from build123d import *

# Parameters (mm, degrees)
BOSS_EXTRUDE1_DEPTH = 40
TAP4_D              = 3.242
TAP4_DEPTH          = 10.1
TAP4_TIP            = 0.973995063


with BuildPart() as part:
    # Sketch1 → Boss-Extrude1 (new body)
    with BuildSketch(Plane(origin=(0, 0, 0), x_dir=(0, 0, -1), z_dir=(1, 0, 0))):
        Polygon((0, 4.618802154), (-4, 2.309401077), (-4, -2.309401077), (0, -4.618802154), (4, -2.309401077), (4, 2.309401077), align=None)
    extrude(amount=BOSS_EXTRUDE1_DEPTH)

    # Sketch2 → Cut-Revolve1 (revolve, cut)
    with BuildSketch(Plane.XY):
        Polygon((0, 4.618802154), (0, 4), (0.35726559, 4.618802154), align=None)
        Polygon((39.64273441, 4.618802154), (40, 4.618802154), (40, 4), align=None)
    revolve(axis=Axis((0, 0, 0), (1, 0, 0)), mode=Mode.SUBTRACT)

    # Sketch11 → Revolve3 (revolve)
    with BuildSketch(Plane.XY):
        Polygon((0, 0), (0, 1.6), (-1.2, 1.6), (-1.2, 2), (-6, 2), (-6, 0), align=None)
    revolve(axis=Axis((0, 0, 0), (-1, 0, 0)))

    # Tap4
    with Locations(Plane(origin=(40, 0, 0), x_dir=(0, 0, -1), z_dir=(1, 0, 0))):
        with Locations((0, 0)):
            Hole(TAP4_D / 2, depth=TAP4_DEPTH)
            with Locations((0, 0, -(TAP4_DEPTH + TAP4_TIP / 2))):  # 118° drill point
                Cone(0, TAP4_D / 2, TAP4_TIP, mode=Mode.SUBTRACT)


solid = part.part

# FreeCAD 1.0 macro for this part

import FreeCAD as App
import Part
import Sketcher

V = App.Vector
Q = App.Units.Quantity

doc = App.newDocument("Part")
body = doc.addObject("PartDesign::Body", "Body")

# Sketch on YZ plane
sketch1 = body.newObject("Sketcher::SketchObject", "Sketch")
sketch1.AttachmentSupport = (doc.getObject("YZ_Plane"), [""])
sketch1.MapMode = "FlatFace"
sketch1.addGeometry([
    Part.LineSegment(V(4.6, 0, 0), V(2.3, 4, 0)),  # 0
    Part.LineSegment(V(2.3, 4, 0), V(-2.3, 4, 0)),  # 1
    Part.LineSegment(V(-2.3, 4, 0), V(-4.6, 0, 0)),  # 2
    Part.LineSegment(V(-4.6, 0, 0), V(-2.3, -4, 0)),  # 3
    Part.LineSegment(V(-2.3, -4, 0), V(2.3, -4, 0)),  # 4
    Part.LineSegment(V(2.3, -4, 0), V(4.6, 0, 0)),  # 5
], False)
sketch1.addConstraint([
    Sketcher.Constraint("Coincident", 0, 2, 1, 1),
    Sketcher.Constraint("Coincident", 1, 2, 2, 1),
    Sketcher.Constraint("Coincident", 2, 2, 3, 1),
    Sketcher.Constraint("Coincident", 3, 2, 4, 1),
    Sketcher.Constraint("Coincident", 4, 2, 5, 1),
    Sketcher.Constraint("Coincident", 5, 2, 0, 1),
    Sketcher.Constraint("Horizontal", 1),
    Sketcher.Constraint("Horizontal", 4),
    Sketcher.Constraint("Symmetric", 0, 2, 3, 2, -1, 1),
    Sketcher.Constraint("Symmetric", 2, 2, 5, 2, -1, 1),
    Sketcher.Constraint("PointOnObject", 2, 2, -1),
    Sketcher.Constraint("Parallel", 2, 5),
    Sketcher.Constraint("Vertical", 1, 2, 3, 2),
    Sketcher.Constraint("Angle", 0, Q("120 deg")),
    Sketcher.Constraint("DistanceY", -1, 1, 0, 2, Q("4 mm")),
    Sketcher.Constraint("DistanceX", -1, 1, 0, 2, Q("2.309401 mm")),
])
pad1 = body.newObject("PartDesign::Pad", "Pad")
pad1.Profile = sketch1
pad1.Length = 40

# Sketch on XY plane
sketch2 = body.newObject("Sketcher::SketchObject", "Sketch001")
sketch2.AttachmentSupport = (doc.getObject("XY_Plane"), [""])
sketch2.MapMode = "FlatFace"
sketch2.addGeometry([
    Part.LineSegment(V(0, 4.62, 0), V(0, 4, 0)),  # 0
    Part.LineSegment(V(0, 4, 0), V(0.36, 4.62, 0)),  # 1
    Part.LineSegment(V(0.36, 4.62, 0), V(0, 4.62, 0)),  # 2
    Part.LineSegment(V(40, 4.62, 0), V(39.64, 4.62, 0)),  # 3
    Part.LineSegment(V(39.64, 4.62, 0), V(40, 4, 0)),  # 4
    Part.LineSegment(V(40, 4, 0), V(40, 4.62, 0)),  # 5
], False)
sketch2.addConstraint([
    Sketcher.Constraint("Coincident", 0, 2, 1, 1),
    Sketcher.Constraint("Coincident", 1, 2, 2, 1),
    Sketcher.Constraint("Coincident", 2, 2, 0, 1),
    Sketcher.Constraint("Coincident", 3, 2, 4, 1),
    Sketcher.Constraint("Coincident", 4, 2, 5, 1),
    Sketcher.Constraint("Coincident", 5, 2, 3, 1),
    Sketcher.Constraint("Vertical", 0),
    Sketcher.Constraint("Horizontal", 2),
    Sketcher.Constraint("Horizontal", 3),
    Sketcher.Constraint("Vertical", 5),
    Sketcher.Constraint("PointOnObject", 0, 2, -2),
    Sketcher.Constraint("Horizontal", 2, 2, 3, 2),
    Sketcher.Constraint("Horizontal", 0, 2, 4, 2),
    Sketcher.Constraint("Equal", 2, 3),
    Sketcher.Constraint("Angle", 1, Q("60 deg")),
    Sketcher.Constraint("DistanceY", -1, 1, 0, 2, Q("4 mm")),
    Sketcher.Constraint("DistanceX", -1, 1, 4, 2, Q("40 mm")),
    Sketcher.Constraint("Distance", 1, Q("0.714531 mm")),
])
groove = body.newObject("PartDesign::Groove", "Groove")
groove.Profile = sketch2
groove.ReferenceAxis = (sketch2, ["H_Axis"])
groove.Angle = 360

# Sketch on XY plane
sketch3 = body.newObject("Sketcher::SketchObject", "Sketch002")
sketch3.AttachmentSupport = (doc.getObject("XY_Plane"), [""])
sketch3.MapMode = "FlatFace"
sketch3.addGeometry([
    Part.LineSegment(V(0, 0, 0), V(0, 1.6, 0)),  # 0
    Part.LineSegment(V(0, 1.6, 0), V(-1.2, 1.6, 0)),  # 1
    Part.LineSegment(V(-1.2, 1.6, 0), V(-1.2, 2, 0)),  # 2
    Part.LineSegment(V(-1.2, 2, 0), V(-6, 2, 0)),  # 3
    Part.LineSegment(V(-6, 2, 0), V(-6, 0, 0)),  # 4
    Part.LineSegment(V(-6, 0, 0), V(0, 0, 0)),  # 5
], False)
sketch3.addConstraint([
    Sketcher.Constraint("Coincident", 0, 2, 1, 1),
    Sketcher.Constraint("Coincident", 1, 2, 2, 1),
    Sketcher.Constraint("Coincident", 2, 2, 3, 1),
    Sketcher.Constraint("Coincident", 3, 2, 4, 1),
    Sketcher.Constraint("Coincident", 4, 2, 5, 1),
    Sketcher.Constraint("Coincident", 5, 2, 0, 1),
    Sketcher.Constraint("Vertical", 0),
    Sketcher.Constraint("Horizontal", 1),
    Sketcher.Constraint("Vertical", 2),
    Sketcher.Constraint("Horizontal", 3),
    Sketcher.Constraint("Vertical", 4),
    Sketcher.Constraint("Horizontal", 5),
    Sketcher.Constraint("Coincident", 5, 2, -1, 1),
    Sketcher.Constraint("DistanceX", 5, 1, 5, 2, Q("6 mm")),
    Sketcher.Constraint("DistanceY", 4, 2, 4, 1, Q("2 mm")),
    Sketcher.Constraint("DistanceX", 1, 2, 1, 1, Q("1.2 mm")),
    Sketcher.Constraint("DistanceY", 0, 1, 0, 2, Q("1.6 mm")),
])
revolution = body.newObject("PartDesign::Revolution", "Revolution")
revolution.Profile = sketch3
revolution.ReferenceAxis = (sketch3, ["H_Axis"])
revolution.Angle = 360

# Sketch on YZ plane
sketch4 = body.newObject("Sketcher::SketchObject", "Sketch003")
sketch4.AttachmentSupport = (doc.getObject("YZ_Plane"), [""])
sketch4.MapMode = "FlatFace"
sketch4.AttachmentOffset = App.Placement(V(0, 0, 40), App.Rotation())
sketch4.addGeometry(Part.Circle(V(0, 0, 0), V(0, 0, 1), 1.6), False)
sketch4.addConstraint([
    Sketcher.Constraint("Coincident", 0, 3, -1, 1),
    Sketcher.Constraint("Diameter", 0, Q("3.242 mm")),
])
doc.recompute()
hole = body.newObject("PartDesign::Hole", "Hole")
hole.Profile = sketch4
hole.ThreadType = "None"
hole.Diameter = 3.242
hole.DepthType = "Dimension"
hole.Depth = 10.1
hole.DrillPoint = "Angled"
hole.DrillPointAngle = 118

doc.recompute()
